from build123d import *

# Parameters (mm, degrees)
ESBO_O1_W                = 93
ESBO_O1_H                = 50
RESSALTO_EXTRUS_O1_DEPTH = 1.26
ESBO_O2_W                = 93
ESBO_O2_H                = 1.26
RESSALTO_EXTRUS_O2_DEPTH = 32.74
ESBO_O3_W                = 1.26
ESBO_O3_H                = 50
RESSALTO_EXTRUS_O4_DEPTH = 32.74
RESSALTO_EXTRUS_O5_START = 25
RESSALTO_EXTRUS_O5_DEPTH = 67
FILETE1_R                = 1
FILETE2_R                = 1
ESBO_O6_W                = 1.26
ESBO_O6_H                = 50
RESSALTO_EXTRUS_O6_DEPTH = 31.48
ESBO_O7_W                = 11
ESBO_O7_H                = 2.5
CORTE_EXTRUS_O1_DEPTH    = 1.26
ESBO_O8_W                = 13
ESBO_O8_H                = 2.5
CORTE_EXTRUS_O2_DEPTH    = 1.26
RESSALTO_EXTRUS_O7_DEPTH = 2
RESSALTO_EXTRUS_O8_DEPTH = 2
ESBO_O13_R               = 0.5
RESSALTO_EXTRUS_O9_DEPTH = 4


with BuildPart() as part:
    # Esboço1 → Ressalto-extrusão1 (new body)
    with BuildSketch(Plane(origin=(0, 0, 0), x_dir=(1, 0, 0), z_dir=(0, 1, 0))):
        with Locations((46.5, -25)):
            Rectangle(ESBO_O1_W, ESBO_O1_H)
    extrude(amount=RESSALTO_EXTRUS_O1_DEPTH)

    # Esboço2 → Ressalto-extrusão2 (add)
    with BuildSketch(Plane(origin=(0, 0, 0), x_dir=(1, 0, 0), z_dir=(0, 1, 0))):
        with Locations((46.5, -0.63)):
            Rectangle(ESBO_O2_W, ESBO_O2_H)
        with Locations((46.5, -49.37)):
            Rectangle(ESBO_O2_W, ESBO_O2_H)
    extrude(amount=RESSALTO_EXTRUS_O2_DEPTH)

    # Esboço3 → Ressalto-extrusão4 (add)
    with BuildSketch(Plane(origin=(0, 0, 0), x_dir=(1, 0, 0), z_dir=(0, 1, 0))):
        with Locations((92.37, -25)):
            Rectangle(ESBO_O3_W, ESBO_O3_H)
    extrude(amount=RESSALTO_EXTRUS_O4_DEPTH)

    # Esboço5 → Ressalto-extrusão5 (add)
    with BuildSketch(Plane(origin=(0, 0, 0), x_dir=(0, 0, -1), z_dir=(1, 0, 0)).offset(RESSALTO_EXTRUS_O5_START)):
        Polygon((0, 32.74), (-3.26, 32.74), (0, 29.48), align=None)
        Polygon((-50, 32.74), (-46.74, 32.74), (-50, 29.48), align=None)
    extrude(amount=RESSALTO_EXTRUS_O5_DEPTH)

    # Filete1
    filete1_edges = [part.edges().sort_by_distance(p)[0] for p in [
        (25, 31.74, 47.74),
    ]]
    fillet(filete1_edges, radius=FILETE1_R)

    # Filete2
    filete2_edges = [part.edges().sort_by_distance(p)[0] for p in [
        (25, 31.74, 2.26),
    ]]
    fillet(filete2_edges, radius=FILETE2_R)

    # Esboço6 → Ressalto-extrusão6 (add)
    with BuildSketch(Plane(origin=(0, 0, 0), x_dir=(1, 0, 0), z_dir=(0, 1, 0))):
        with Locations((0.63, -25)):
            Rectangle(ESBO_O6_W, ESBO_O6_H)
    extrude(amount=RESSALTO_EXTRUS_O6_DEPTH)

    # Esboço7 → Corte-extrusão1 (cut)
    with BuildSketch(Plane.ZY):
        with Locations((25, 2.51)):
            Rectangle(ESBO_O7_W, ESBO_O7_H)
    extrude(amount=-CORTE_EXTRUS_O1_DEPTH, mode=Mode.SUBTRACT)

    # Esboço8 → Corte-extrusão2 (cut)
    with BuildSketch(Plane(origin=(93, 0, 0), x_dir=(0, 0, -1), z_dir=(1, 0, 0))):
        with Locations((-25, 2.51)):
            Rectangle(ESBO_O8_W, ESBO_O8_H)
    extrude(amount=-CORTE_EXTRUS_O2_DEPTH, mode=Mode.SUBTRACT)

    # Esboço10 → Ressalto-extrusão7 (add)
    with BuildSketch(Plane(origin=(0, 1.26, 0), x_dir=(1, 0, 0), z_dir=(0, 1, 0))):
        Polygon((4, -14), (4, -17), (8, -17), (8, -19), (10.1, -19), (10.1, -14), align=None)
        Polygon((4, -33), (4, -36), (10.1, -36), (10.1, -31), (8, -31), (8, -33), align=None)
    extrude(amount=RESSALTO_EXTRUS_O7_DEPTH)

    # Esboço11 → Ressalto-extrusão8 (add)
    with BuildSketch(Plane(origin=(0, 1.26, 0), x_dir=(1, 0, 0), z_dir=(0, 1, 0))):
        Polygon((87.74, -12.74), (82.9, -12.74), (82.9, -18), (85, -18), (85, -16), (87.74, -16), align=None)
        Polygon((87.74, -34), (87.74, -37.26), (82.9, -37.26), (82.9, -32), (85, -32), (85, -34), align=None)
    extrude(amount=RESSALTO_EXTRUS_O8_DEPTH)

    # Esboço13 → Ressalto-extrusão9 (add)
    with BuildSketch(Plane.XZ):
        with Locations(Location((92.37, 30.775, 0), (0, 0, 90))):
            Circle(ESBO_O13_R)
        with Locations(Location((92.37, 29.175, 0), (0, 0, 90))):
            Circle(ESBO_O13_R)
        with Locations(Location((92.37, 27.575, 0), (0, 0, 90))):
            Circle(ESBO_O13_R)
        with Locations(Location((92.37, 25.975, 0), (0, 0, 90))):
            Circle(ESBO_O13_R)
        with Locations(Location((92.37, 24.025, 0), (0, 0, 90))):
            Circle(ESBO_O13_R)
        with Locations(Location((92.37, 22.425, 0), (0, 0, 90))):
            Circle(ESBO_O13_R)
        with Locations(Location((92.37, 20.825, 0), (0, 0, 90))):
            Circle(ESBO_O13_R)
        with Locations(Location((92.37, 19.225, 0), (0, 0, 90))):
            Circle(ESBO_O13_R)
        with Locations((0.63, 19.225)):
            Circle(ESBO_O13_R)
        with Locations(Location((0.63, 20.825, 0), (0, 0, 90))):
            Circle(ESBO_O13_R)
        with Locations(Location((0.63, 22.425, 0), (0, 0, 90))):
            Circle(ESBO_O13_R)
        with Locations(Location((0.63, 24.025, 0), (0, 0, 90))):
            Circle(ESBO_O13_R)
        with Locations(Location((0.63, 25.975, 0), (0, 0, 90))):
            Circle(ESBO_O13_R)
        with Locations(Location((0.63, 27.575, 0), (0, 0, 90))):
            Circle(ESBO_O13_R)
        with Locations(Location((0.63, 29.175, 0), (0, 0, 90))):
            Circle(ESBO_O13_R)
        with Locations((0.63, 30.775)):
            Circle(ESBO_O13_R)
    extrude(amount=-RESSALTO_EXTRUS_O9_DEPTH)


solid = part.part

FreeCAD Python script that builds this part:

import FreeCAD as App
import Part
import Sketcher

V = App.Vector


def edges_at(feature, points):
    """Names of the edges that pass closest to the given points."""
    edges = feature.Shape.Edges
    near = lambda p: min(range(len(edges)), key=lambda i: edges[i].distToShape(Part.Vertex(*p))[0])
    return sorted({f"Edge{near(p) + 1}" for p in points})

doc = App.newDocument("Part")
body = doc.addObject("PartDesign::Body", "Body")

sketch1 = body.newObject("Sketcher::SketchObject", "Sketch")
sketch1.AttachmentSupport = (doc.getObject("XZ_Plane"), [""])
sketch1.MapMode = "FlatFace"
sketch1.addGeometry(Part.LineSegment(V(0, 0, 0), V(0, 50, 0)), False)
sketch1.addGeometry(Part.LineSegment(V(0, 50, 0), V(93, 50, 0)), False)
sketch1.addGeometry(Part.LineSegment(V(93, 50, 0), V(93, 0, 0)), False)
sketch1.addGeometry(Part.LineSegment(V(93, 0, 0), V(0, 0, 0)), False)
sketch1.addConstraint(Sketcher.Constraint("Coincident", 0, 2, 1, 1))
sketch1.addConstraint(Sketcher.Constraint("Coincident", 1, 2, 2, 1))
sketch1.addConstraint(Sketcher.Constraint("Coincident", 2, 2, 3, 1))
sketch1.addConstraint(Sketcher.Constraint("Coincident", 3, 2, 0, 1))
sketch1.addConstraint(Sketcher.Constraint("Vertical", 0))
sketch1.addConstraint(Sketcher.Constraint("Horizontal", 1))
sketch1.addConstraint(Sketcher.Constraint("Vertical", 2))
sketch1.addConstraint(Sketcher.Constraint("Horizontal", 3))
sketch1.addConstraint(Sketcher.Constraint("Coincident", 3, 2, -1, 1))
sketch1.addConstraint(Sketcher.Constraint("DistanceX", 1, 1, 1, 2, 93.0))
sketch1.addConstraint(Sketcher.Constraint("DistanceY", 0, 1, 0, 2, 50.0))
pad1 = body.newObject("PartDesign::Pad", "Pad")
pad1.Profile = sketch1
pad1.Length = 1.26
pad1.Reversed = True

sketch2 = body.newObject("Sketcher::SketchObject", "Sketch001")
sketch2.AttachmentSupport = (doc.getObject("XZ_Plane"), [""])
sketch2.MapMode = "FlatFace"
sketch2.addGeometry(Part.LineSegment(V(0, 0, 0), V(0, 1.26, 0)), False)
sketch2.addGeometry(Part.LineSegment(V(0, 1.26, 0), V(93, 1.26, 0)), False)
sketch2.addGeometry(Part.LineSegment(V(93, 1.26, 0), V(93, 0, 0)), False)
sketch2.addGeometry(Part.LineSegment(V(93, 0, 0), V(0, 0, 0)), False)
sketch2.addGeometry(Part.LineSegment(V(0, 48.74, 0), V(0, 50, 0)), False)
sketch2.addGeometry(Part.LineSegment(V(0, 50, 0), V(93, 50, 0)), False)
sketch2.addGeometry(Part.LineSegment(V(93, 50, 0), V(93, 48.74, 0)), False)
sketch2.addGeometry(Part.LineSegment(V(93, 48.74, 0), V(0, 48.74, 0)), False)
sketch2.addConstraint(Sketcher.Constraint("Coincident", 0, 2, 1, 1))
sketch2.addConstraint(Sketcher.Constraint("Coincident", 1, 2, 2, 1))
sketch2.addConstraint(Sketcher.Constraint("Coincident", 2, 2, 3, 1))
sketch2.addConstraint(Sketcher.Constraint("Coincident", 3, 2, 0, 1))
sketch2.addConstraint(Sketcher.Constraint("Coincident", 4, 2, 5, 1))
sketch2.addConstraint(Sketcher.Constraint("Coincident", 5, 2, 6, 1))
sketch2.addConstraint(Sketcher.Constraint("Coincident", 6, 2, 7, 1))
sketch2.addConstraint(Sketcher.Constraint("Coincident", 7, 2, 4, 1))
sketch2.addConstraint(Sketcher.Constraint("Vertical", 0))
sketch2.addConstraint(Sketcher.Constraint("Horizontal", 1))
sketch2.addConstraint(Sketcher.Constraint("Vertical", 2))
sketch2.addConstraint(Sketcher.Constraint("Horizontal", 3))
sketch2.addConstraint(Sketcher.Constraint("Vertical", 4))
sketch2.addConstraint(Sketcher.Constraint("Horizontal", 5))
sketch2.addConstraint(Sketcher.Constraint("Vertical", 6))
sketch2.addConstraint(Sketcher.Constraint("Horizontal", 7))
sketch2.addConstraint(Sketcher.Constraint("Coincident", 3, 2, -1, 1))
sketch2.addConstraint(Sketcher.Constraint("PointOnObject", 4, 2, -2))
sketch2.addConstraint(Sketcher.Constraint("Vertical", 2, 2, 5, 2))
sketch2.addConstraint(Sketcher.Constraint("Equal", 2, 4))
sketch2.addConstraint(Sketcher.Constraint("DistanceX", 1, 1, 1, 2, 93.0))
sketch2.addConstraint(Sketcher.Constraint("DistanceY", -1, 1, 4, 2, 50.0))
sketch2.addConstraint(Sketcher.Constraint("DistanceY", 0, 1, 0, 2, 1.26))
pad2 = body.newObject("PartDesign::Pad", "Pad001")
pad2.Profile = sketch2
pad2.Length = 32.74
pad2.Reversed = True

sketch3 = body.newObject("Sketcher::SketchObject", "Sketch002")
sketch3.AttachmentSupport = (doc.getObject("XZ_Plane"), [""])
sketch3.MapMode = "FlatFace"
sketch3.addGeometry(Part.LineSegment(V(91.74, 0, 0), V(91.74, 50, 0)), False)
sketch3.addGeometry(Part.LineSegment(V(91.74, 50, 0), V(93, 50, 0)), False)
sketch3.addGeometry(Part.LineSegment(V(93, 50, 0), V(93, 0, 0)), False)
sketch3.addGeometry(Part.LineSegment(V(93, 0, 0), V(91.74, 0, 0)), False)
sketch3.addConstraint(Sketcher.Constraint("Coincident", 0, 2, 1, 1))
sketch3.addConstraint(Sketcher.Constraint("Coincident", 1, 2, 2, 1))
sketch3.addConstraint(Sketcher.Constraint("Coincident", 2, 2, 3, 1))
sketch3.addConstraint(Sketcher.Constraint("Coincident", 3, 2, 0, 1))
sketch3.addConstraint(Sketcher.Constraint("Vertical", 0))
sketch3.addConstraint(Sketcher.Constraint("Horizontal", 1))
sketch3.addConstraint(Sketcher.Constraint("Vertical", 2))
sketch3.addConstraint(Sketcher.Constraint("Horizontal", 3))
sketch3.addConstraint(Sketcher.Constraint("PointOnObject", 2, 2, -1))
sketch3.addConstraint(Sketcher.Constraint("DistanceY", 0, 1, 0, 2, 50.0))
sketch3.addConstraint(Sketcher.Constraint("DistanceX", -1, 1, 1, 2, 93.0))
sketch3.addConstraint(Sketcher.Constraint("DistanceX", 1, 1, 1, 2, 1.26))
pad3 = body.newObject("PartDesign::Pad", "Pad002")
pad3.Profile = sketch3
pad3.Length = 32.74
pad3.Reversed = True

sketch4 = body.newObject("Sketcher::SketchObject", "Sketch003")
sketch4.AttachmentSupport = (doc.getObject("YZ_Plane"), [""])
sketch4.MapMode = "FlatFace"
sketch4.AttachmentOffset = App.Placement(V(0, 0, 25), App.Rotation())
sketch4.addGeometry(Part.LineSegment(V(32.74, 0, 0), V(32.74, 3.26, 0)), False)
sketch4.addGeometry(Part.LineSegment(V(32.74, 3.26, 0), V(29.48, 0, 0)), False)
sketch4.addGeometry(Part.LineSegment(V(29.48, 0, 0), V(32.74, 0, 0)), False)
sketch4.addGeometry(Part.LineSegment(V(32.74, 46.74, 0), V(32.74, 50, 0)), False)
sketch4.addGeometry(Part.LineSegment(V(32.74, 50, 0), V(29.48, 50, 0)), False)
sketch4.addGeometry(Part.LineSegment(V(29.48, 50, 0), V(32.74, 46.74, 0)), False)
sketch4.addConstraint(Sketcher.Constraint("Coincident", 0, 2, 1, 1))
sketch4.addConstraint(Sketcher.Constraint("Coincident", 1, 2, 2, 1))
sketch4.addConstraint(Sketcher.Constraint("Coincident", 2, 2, 0, 1))
sketch4.addConstraint(Sketcher.Constraint("Coincident", 3, 2, 4, 1))
sketch4.addConstraint(Sketcher.Constraint("Coincident", 4, 2, 5, 1))
sketch4.addConstraint(Sketcher.Constraint("Coincident", 5, 2, 3, 1))
sketch4.addConstraint(Sketcher.Constraint("Vertical", 0))
sketch4.addConstraint(Sketcher.Constraint("Horizontal", 2))
sketch4.addConstraint(Sketcher.Constraint("Vertical", 3))
sketch4.addConstraint(Sketcher.Constraint("Horizontal", 4))
sketch4.addConstraint(Sketcher.Constraint("PointOnObject", 1, 2, -1))
sketch4.addConstraint(Sketcher.Constraint("Perpendicular", 1, 5))
sketch4.addConstraint(Sketcher.Constraint("Vertical", 2, 2, 3, 2))
sketch4.addConstraint(Sketcher.Constraint("Vertical", 1, 2, 4, 2))
sketch4.addConstraint(Sketcher.Constraint("Equal", 4, 0))
sketch4.addConstraint(Sketcher.Constraint("DistanceY", -1, 1, 3, 2, 50.0))
sketch4.addConstraint(Sketcher.Constraint("DistanceX", 2, 1, 2, 2, 3.26))
sketch4.addConstraint(Sketcher.Constraint("DistanceX", -1, 1, 0, 2, 32.74))
pad4 = body.newObject("PartDesign::Pad", "Pad003")
pad4.Profile = sketch4
pad4.Length = 67
doc.recompute()

fillet = body.newObject("PartDesign::Fillet", "Fillet")
fillet.Base = (pad4, edges_at(pad4, [(25, 31.74, 47.74)]))
fillet.Radius = 1
doc.recompute()

fillet2 = body.newObject("PartDesign::Fillet", "Fillet001")
fillet2.Base = (fillet, edges_at(fillet, [(25, 31.74, 2.26)]))
fillet2.Radius = 1

sketch5 = body.newObject("Sketcher::SketchObject", "Sketch004")
sketch5.AttachmentSupport = (doc.getObject("XZ_Plane"), [""])
sketch5.MapMode = "FlatFace"
sketch5.addGeometry(Part.LineSegment(V(0, 0, 0), V(0, 50, 0)), False)
sketch5.addGeometry(Part.LineSegment(V(0, 50, 0), V(1.26, 50, 0)), False)
sketch5.addGeometry(Part.LineSegment(V(1.26, 50, 0), V(1.26, 0, 0)), False)
sketch5.addGeometry(Part.LineSegment(V(1.26, 0, 0), V(0, 0, 0)), False)
sketch5.addConstraint(Sketcher.Constraint("Coincident", 0, 2, 1, 1))
sketch5.addConstraint(Sketcher.Constraint("Coincident", 1, 2, 2, 1))
sketch5.addConstraint(Sketcher.Constraint("Coincident", 2, 2, 3, 1))
sketch5.addConstraint(Sketcher.Constraint("Coincident", 3, 2, 0, 1))
sketch5.addConstraint(Sketcher.Constraint("Vertical", 0))
sketch5.addConstraint(Sketcher.Constraint("Horizontal", 1))
sketch5.addConstraint(Sketcher.Constraint("Vertical", 2))
sketch5.addConstraint(Sketcher.Constraint("Horizontal", 3))
sketch5.addConstraint(Sketcher.Constraint("Coincident", 3, 2, -1, 1))
sketch5.addConstraint(Sketcher.Constraint("DistanceY", 0, 1, 0, 2, 50.0))
sketch5.addConstraint(Sketcher.Constraint("DistanceX", 1, 1, 1, 2, 1.26))
pad5 = body.newObject("PartDesign::Pad", "Pad004")
pad5.Profile = sketch5
pad5.Length = 31.48
pad5.Reversed = True

sketch6 = body.newObject("Sketcher::SketchObject", "Sketch005")
sketch6.AttachmentSupport = (doc.getObject("YZ_Plane"), [""])
sketch6.MapMode = "FlatFace"
sketch6.addGeometry(Part.LineSegment(V(3.76, 19.5, 0), V(1.26, 19.5, 0)), False)
sketch6.addGeometry(Part.LineSegment(V(1.26, 19.5, 0), V(1.26, 30.5, 0)), False)
sketch6.addGeometry(Part.LineSegment(V(1.26, 30.5, 0), V(3.76, 30.5, 0)), False)
sketch6.addGeometry(Part.LineSegment(V(3.76, 30.5, 0), V(3.76, 19.5, 0)), False)
sketch6.addConstraint(Sketcher.Constraint("Coincident", 0, 2, 1, 1))
sketch6.addConstraint(Sketcher.Constraint("Coincident", 1, 2, 2, 1))
sketch6.addConstraint(Sketcher.Constraint("Coincident", 2, 2, 3, 1))
sketch6.addConstraint(Sketcher.Constraint("Coincident", 3, 2, 0, 1))
sketch6.addConstraint(Sketcher.Constraint("Horizontal", 0))
sketch6.addConstraint(Sketcher.Constraint("Vertical", 1))
sketch6.addConstraint(Sketcher.Constraint("Horizontal", 2))
sketch6.addConstraint(Sketcher.Constraint("Vertical", 3))
sketch6.addConstraint(Sketcher.Constraint("DistanceY", 1, 1, 1, 2, 11.0))
sketch6.addConstraint(Sketcher.Constraint("DistanceX", 0, 2, 0, 1, 2.5))
sketch6.addConstraint(Sketcher.Constraint("DistanceY", -1, 1, 0, 2, 19.5))
sketch6.addConstraint(Sketcher.Constraint("DistanceX", -1, 1, 0, 2, 1.26))
pocket1 = body.newObject("PartDesign::Pocket", "Pocket")
pocket1.Profile = sketch6
pocket1.Length = 1.26
pocket1.Reversed = True

sketch7 = body.newObject("Sketcher::SketchObject", "Sketch006")
sketch7.AttachmentSupport = (doc.getObject("YZ_Plane"), [""])
sketch7.MapMode = "FlatFace"
sketch7.AttachmentOffset = App.Placement(V(0, 0, 93), App.Rotation())
sketch7.addGeometry(Part.LineSegment(V(3.76, 31.5, 0), V(1.26, 31.5, 0)), False)
sketch7.addGeometry(Part.LineSegment(V(1.26, 31.5, 0), V(1.26, 18.5, 0)), False)
sketch7.addGeometry(Part.LineSegment(V(1.26, 18.5, 0), V(3.76, 18.5, 0)), False)
sketch7.addGeometry(Part.LineSegment(V(3.76, 18.5, 0), V(3.76, 31.5, 0)), False)
sketch7.addConstraint(Sketcher.Constraint("Coincident", 0, 2, 1, 1))
sketch7.addConstraint(Sketcher.Constraint("Coincident", 1, 2, 2, 1))
sketch7.addConstraint(Sketcher.Constraint("Coincident", 2, 2, 3, 1))
sketch7.addConstraint(Sketcher.Constraint("Coincident", 3, 2, 0, 1))
sketch7.addConstraint(Sketcher.Constraint("Horizontal", 0))
sketch7.addConstraint(Sketcher.Constraint("Vertical", 1))
sketch7.addConstraint(Sketcher.Constraint("Horizontal", 2))
sketch7.addConstraint(Sketcher.Constraint("Vertical", 3))
sketch7.addConstraint(Sketcher.Constraint("DistanceY", 1, 2, 1, 1, 13.0))
sketch7.addConstraint(Sketcher.Constraint("DistanceX", 0, 2, 0, 1, 2.5))
sketch7.addConstraint(Sketcher.Constraint("DistanceY", -1, 1, 0, 2, 31.5))
sketch7.addConstraint(Sketcher.Constraint("DistanceX", -1, 1, 0, 2, 1.26))
pocket2 = body.newObject("PartDesign::Pocket", "Pocket001")
pocket2.Profile = sketch7
pocket2.Length = 1.26

sketch8 = body.newObject("Sketcher::SketchObject", "Sketch007")
sketch8.AttachmentSupport = (doc.getObject("XZ_Plane"), [""])
sketch8.MapMode = "FlatFace"
sketch8.AttachmentOffset = App.Placement(V(0, 0, -1.26), App.Rotation())
sketch8.addGeometry(Part.LineSegment(V(4, 14, 0), V(4, 17, 0)), False)
sketch8.addGeometry(Part.LineSegment(V(4, 17, 0), V(8, 17, 0)), False)
sketch8.addGeometry(Part.LineSegment(V(8, 17, 0), V(8, 19, 0)), False)
sketch8.addGeometry(Part.LineSegment(V(8, 19, 0), V(10.1, 19, 0)), False)
sketch8.addGeometry(Part.LineSegment(V(10.1, 19, 0), V(10.1, 14, 0)), False)
sketch8.addGeometry(Part.LineSegment(V(10.1, 14, 0), V(4, 14, 0)), False)
sketch8.addGeometry(Part.LineSegment(V(4, 33, 0), V(4, 36, 0)), False)
sketch8.addGeometry(Part.LineSegment(V(4, 36, 0), V(10.1, 36, 0)), False)
sketch8.addGeometry(Part.LineSegment(V(10.1, 36, 0), V(10.1, 31, 0)), False)
sketch8.addGeometry(Part.LineSegment(V(10.1, 31, 0), V(8, 31, 0)), False)
sketch8.addGeometry(Part.LineSegment(V(8, 31, 0), V(8, 33, 0)), False)
sketch8.addGeometry(Part.LineSegment(V(8, 33, 0), V(4, 33, 0)), False)
sketch8.addConstraint(Sketcher.Constraint("Coincident", 0, 2, 1, 1))
sketch8.addConstraint(Sketcher.Constraint("Coincident", 1, 2, 2, 1))
sketch8.addConstraint(Sketcher.Constraint("Coincident", 2, 2, 3, 1))
sketch8.addConstraint(Sketcher.Constraint("Coincident", 3, 2, 4, 1))
sketch8.addConstraint(Sketcher.Constraint("Coincident", 4, 2, 5, 1))
sketch8.addConstraint(Sketcher.Constraint("Coincident", 5, 2, 0, 1))
sketch8.addConstraint(Sketcher.Constraint("Coincident", 6, 2, 7, 1))
sketch8.addConstraint(Sketcher.Constraint("Coincident", 7, 2, 8, 1))
sketch8.addConstraint(Sketcher.Constraint("Coincident", 8, 2, 9, 1))
sketch8.addConstraint(Sketcher.Constraint("Coincident", 9, 2, 10, 1))
sketch8.addConstraint(Sketcher.Constraint("Coincident", 10, 2, 11, 1))
sketch8.addConstraint(Sketcher.Constraint("Coincident", 11, 2, 6, 1))
sketch8.addConstraint(Sketcher.Constraint("Vertical", 0))
sketch8.addConstraint(Sketcher.Constraint("Horizontal", 1))
sketch8.addConstraint(Sketcher.Constraint("Vertical", 2))
sketch8.addConstraint(Sketcher.Constraint("Horizontal", 3))
sketch8.addConstraint(Sketcher.Constraint("Vertical", 4))
sketch8.addConstraint(Sketcher.Constraint("Horizontal", 5))
sketch8.addConstraint(Sketcher.Constraint("Vertical", 6))
sketch8.addConstraint(Sketcher.Constraint("Horizontal", 7))
sketch8.addConstraint(Sketcher.Constraint("Vertical", 8))
sketch8.addConstraint(Sketcher.Constraint("Horizontal", 9))
sketch8.addConstraint(Sketcher.Constraint("Vertical", 10))
sketch8.addConstraint(Sketcher.Constraint("Horizontal", 11))
sketch8.addConstraint(Sketcher.Constraint("Vertical", 5, 2, 6, 2))
sketch8.addConstraint(Sketcher.Constraint("Vertical", 4, 2, 7, 2))
sketch8.addConstraint(Sketcher.Constraint("Vertical", 2, 2, 9, 2))
sketch8.addConstraint(Sketcher.Constraint("Equal", 0, 6))
sketch8.addConstraint(Sketcher.Constraint("Equal", 4, 8))
sketch8.addConstraint(Sketcher.Constraint("DistanceX", 1, 1, 1, 2, 4.0))
sketch8.addConstraint(Sketcher.Constraint("DistanceY", 0, 1, 0, 2, 3.0))
sketch8.addConstraint(Sketcher.Constraint("DistanceY", 2, 1, 2, 2, 2.0))
sketch8.addConstraint(Sketcher.Constraint("DistanceX", 3, 1, 3, 2, 2.1))
sketch8.addConstraint(Sketcher.Constraint("DistanceX", -1, 1, 0, 2, 4.0))
sketch8.addConstraint(Sketcher.Constraint("DistanceY", -1, 1, 0, 2, 17.0))
sketch8.addConstraint(Sketcher.Constraint("DistanceY", -1, 1, 6, 2, 36.0))
pad6 = body.newObject("PartDesign::Pad", "Pad005")
pad6.Profile = sketch8
pad6.Length = 2
pad6.Reversed = True

sketch9 = body.newObject("Sketcher::SketchObject", "Sketch008")
sketch9.AttachmentSupport = (doc.getObject("XZ_Plane"), [""])
sketch9.MapMode = "FlatFace"
sketch9.AttachmentOffset = App.Placement(V(0, 0, -1.26), App.Rotation())
sketch9.addGeometry(Part.LineSegment(V(87.74, 12.74, 0), V(82.9, 12.74, 0)), False)
sketch9.addGeometry(Part.LineSegment(V(82.9, 12.74, 0), V(82.9, 18, 0)), False)
sketch9.addGeometry(Part.LineSegment(V(82.9, 18, 0), V(85, 18, 0)), False)
sketch9.addGeometry(Part.LineSegment(V(85, 18, 0), V(85, 16, 0)), False)
sketch9.addGeometry(Part.LineSegment(V(85, 16, 0), V(87.74, 16, 0)), False)
sketch9.addGeometry(Part.LineSegment(V(87.74, 16, 0), V(87.74, 12.74, 0)), False)
sketch9.addGeometry(Part.LineSegment(V(87.74, 37.26, 0), V(87.74, 34, 0)), False)
sketch9.addGeometry(Part.LineSegment(V(87.74, 34, 0), V(85, 34, 0)), False)
sketch9.addGeometry(Part.LineSegment(V(85, 34, 0), V(85, 32, 0)), False)
sketch9.addGeometry(Part.LineSegment(V(85, 32, 0), V(82.9, 32, 0)), False)
sketch9.addGeometry(Part.LineSegment(V(82.9, 32, 0), V(82.9, 37.26, 0)), False)
sketch9.addGeometry(Part.LineSegment(V(82.9, 37.26, 0), V(87.74, 37.26, 0)), False)
sketch9.addConstraint(Sketcher.Constraint("Coincident", 0, 2, 1, 1))
sketch9.addConstraint(Sketcher.Constraint("Coincident", 1, 2, 2, 1))
sketch9.addConstraint(Sketcher.Constraint("Coincident", 2, 2, 3, 1))
sketch9.addConstraint(Sketcher.Constraint("Coincident", 3, 2, 4, 1))
sketch9.addConstraint(Sketcher.Constraint("Coincident", 4, 2, 5, 1))
sketch9.addConstraint(Sketcher.Constraint("Coincident", 5, 2, 0, 1))
sketch9.addConstraint(Sketcher.Constraint("Coincident", 6, 2, 7, 1))
sketch9.addConstraint(Sketcher.Constraint("Coincident", 7, 2, 8, 1))
sketch9.addConstraint(Sketcher.Constraint("Coincident", 8, 2, 9, 1))
sketch9.addConstraint(Sketcher.Constraint("Coincident", 9, 2, 10, 1))
sketch9.addConstraint(Sketcher.Constraint("Coincident", 10, 2, 11, 1))
sketch9.addConstraint(Sketcher.Constraint("Coincident", 11, 2, 6, 1))
sketch9.addConstraint(Sketcher.Constraint("Horizontal", 0))
sketch9.addConstraint(Sketcher.Constraint("Vertical", 1))
sketch9.addConstraint(Sketcher.Constraint("Horizontal", 2))
sketch9.addConstraint(Sketcher.Constraint("Vertical", 3))
sketch9.addConstraint(Sketcher.Constraint("Horizontal", 4))
sketch9.addConstraint(Sketcher.Constraint("Vertical", 5))
sketch9.addConstraint(Sketcher.Constraint("Vertical", 6))
sketch9.addConstraint(Sketcher.Constraint("Horizontal", 7))
sketch9.addConstraint(Sketcher.Constraint("Vertical", 8))
sketch9.addConstraint(Sketcher.Constraint("Horizontal", 9))
sketch9.addConstraint(Sketcher.Constraint("Vertical", 10))
sketch9.addConstraint(Sketcher.Constraint("Horizontal", 11))
sketch9.addConstraint(Sketcher.Constraint("Vertical", 5, 2, 6, 2))
sketch9.addConstraint(Sketcher.Constraint("Vertical", 3, 2, 7, 2))
sketch9.addConstraint(Sketcher.Constraint("Vertical", 1, 2, 9, 2))
sketch9.addConstraint(Sketcher.Constraint("Equal", 5, 6))
sketch9.addConstraint(Sketcher.Constraint("Equal", 3, 8))
sketch9.addConstraint(Sketcher.Constraint("DistanceY", 3, 2, 3, 1, 2.0))
sketch9.addConstraint(Sketcher.Constraint("DistanceX", 2, 1, 2, 2, 2.1))
sketch9.addConstraint(Sketcher.Constraint("DistanceY", -1, 1, 1, 2, 18.0))
sketch9.addConstraint(Sketcher.Constraint("DistanceX", -1, 1, 2, 2, 85.0))
sketch9.addConstraint(Sketcher.Constraint("DistanceY", -1, 1, 6, 2, 34.0))
sketch9.addConstraint(Sketcher.Constraint("DistanceX", 0, 2, 0, 1, 4.84))
sketch9.addConstraint(Sketcher.Constraint("DistanceY", 1, 1, 1, 2, 5.26))
pad7 = body.newObject("PartDesign::Pad", "Pad006")
pad7.Profile = sketch9
pad7.Length = 2
pad7.Reversed = True

sketch10 = body.newObject("Sketcher::SketchObject", "Sketch009")
sketch10.AttachmentSupport = (doc.getObject("XZ_Plane"), [""])
sketch10.MapMode = "FlatFace"
sketch10.addGeometry(Part.Circle(V(92.37, 30.775, 0), V(0, 0, 1), 0.5), False)
sketch10.addGeometry(Part.Circle(V(92.37, 29.175, 0), V(0, 0, 1), 0.5), False)
sketch10.addGeometry(Part.Circle(V(92.37, 27.575, 0), V(0, 0, 1), 0.5), False)
sketch10.addGeometry(Part.Circle(V(92.37, 25.975, 0), V(0, 0, 1), 0.5), False)
sketch10.addGeometry(Part.Circle(V(92.37, 24.025, 0), V(0, 0, 1), 0.5), False)
sketch10.addGeometry(Part.Circle(V(92.37, 22.425, 0), V(0, 0, 1), 0.5), False)
sketch10.addGeometry(Part.Circle(V(92.37, 20.825, 0), V(0, 0, 1), 0.5), False)
sketch10.addGeometry(Part.Circle(V(92.37, 19.225, 0), V(0, 0, 1), 0.5), False)
sketch10.addGeometry(Part.Circle(V(0.63, 19.225, 0), V(0, 0, 1), 0.5), False)
sketch10.addGeometry(Part.Circle(V(0.63, 20.825, 0), V(0, 0, 1), 0.5), False)
sketch10.addGeometry(Part.Circle(V(0.63, 22.425, 0), V(0, 0, 1), 0.5), False)
sketch10.addGeometry(Part.Circle(V(0.63, 24.025, 0), V(0, 0, 1), 0.5), False)
sketch10.addGeometry(Part.Circle(V(0.63, 25.975, 0), V(0, 0, 1), 0.5), False)
sketch10.addGeometry(Part.Circle(V(0.63, 27.575, 0), V(0, 0, 1), 0.5), False)
sketch10.addGeometry(Part.Circle(V(0.63, 29.175, 0), V(0, 0, 1), 0.5), False)
sketch10.addGeometry(Part.Circle(V(0.63, 30.775, 0), V(0, 0, 1), 0.5), False)
sketch10.addConstraint(Sketcher.Constraint("Equal", 0, 1))
sketch10.addConstraint(Sketcher.Constraint("Equal", 1, 2))
sketch10.addConstraint(Sketcher.Constraint("Equal", 2, 3))
sketch10.addConstraint(Sketcher.Constraint("Equal", 3, 4))
sketch10.addConstraint(Sketcher.Constraint("Equal", 4, 5))
sketch10.addConstraint(Sketcher.Constraint("Equal", 5, 6))
sketch10.addConstraint(Sketcher.Constraint("Equal", 6, 7))
sketch10.addConstraint(Sketcher.Constraint("Equal", 7, 8))
sketch10.addConstraint(Sketcher.Constraint("Equal", 8, 9))
sketch10.addConstraint(Sketcher.Constraint("Equal", 9, 10))
sketch10.addConstraint(Sketcher.Constraint("Equal", 10, 11))
sketch10.addConstraint(Sketcher.Constraint("Equal", 11, 12))
sketch10.addConstraint(Sketcher.Constraint("Equal", 12, 13))
sketch10.addConstraint(Sketcher.Constraint("Equal", 13, 14))
sketch10.addConstraint(Sketcher.Constraint("Equal", 14, 15))
sketch10.addConstraint(Sketcher.Constraint("Horizontal", 7, 3, 8, 3))
sketch10.addConstraint(Sketcher.Constraint("Horizontal", 6, 3, 9, 3))
sketch10.addConstraint(Sketcher.Constraint("Horizontal", 5, 3, 10, 3))
sketch10.addConstraint(Sketcher.Constraint("Horizontal", 4, 3, 11, 3))
sketch10.addConstraint(Sketcher.Constraint("Horizontal", 3, 3, 12, 3))
sketch10.addConstraint(Sketcher.Constraint("Horizontal", 2, 3, 13, 3))
sketch10.addConstraint(Sketcher.Constraint("Horizontal", 1, 3, 14, 3))
sketch10.addConstraint(Sketcher.Constraint("Horizontal", 0, 3, 15, 3))
sketch10.addConstraint(Sketcher.Constraint("Vertical", 0, 3, 1, 3))
sketch10.addConstraint(Sketcher.Constraint("Vertical", 1, 3, 2, 3))
sketch10.addConstraint(Sketcher.Constraint("Vertical", 2, 3, 3, 3))
sketch10.addConstraint(Sketcher.Constraint("Vertical", 3, 3, 4, 3))
sketch10.addConstraint(Sketcher.Constraint("Vertical", 4, 3, 5, 3))
sketch10.addConstraint(Sketcher.Constraint("Vertical", 5, 3, 6, 3))
sketch10.addConstraint(Sketcher.Constraint("Vertical", 6, 3, 7, 3))
sketch10.addConstraint(Sketcher.Constraint("Vertical", 8, 3, 9, 3))
sketch10.addConstraint(Sketcher.Constraint("Vertical", 9, 3, 10, 3))
sketch10.addConstraint(Sketcher.Constraint("Vertical", 10, 3, 11, 3))
sketch10.addConstraint(Sketcher.Constraint("Vertical", 11, 3, 12, 3))
sketch10.addConstraint(Sketcher.Constraint("Vertical", 12, 3, 13, 3))
sketch10.addConstraint(Sketcher.Constraint("Vertical", 13, 3, 14, 3))
sketch10.addConstraint(Sketcher.Constraint("Vertical", 14, 3, 15, 3))
sketch10.addConstraint(Sketcher.Constraint("Diameter", 0, 1.0))
sketch10.addConstraint(Sketcher.Constraint("DistanceY", 1, 3, 0, 3, 1.6))
sketch10.addConstraint(Sketcher.Constraint("DistanceY", 2, 3, 1, 3, 1.6))
sketch10.addConstraint(Sketcher.Constraint("DistanceY", 3, 3, 2, 3, 1.6))
sketch10.addConstraint(Sketcher.Constraint("DistanceY", 5, 3, 4, 3, 1.6))
sketch10.addConstraint(Sketcher.Constraint("DistanceY", 6, 3, 5, 3, 1.6))
sketch10.addConstraint(Sketcher.Constraint("DistanceY", 7, 3, 6, 3, 1.6))
sketch10.addConstraint(Sketcher.Constraint("DistanceX", -1, 1, 0, 3, 92.37))
sketch10.addConstraint(Sketcher.Constraint("DistanceX", -1, 1, 8, 3, 0.63))
sketch10.addConstraint(Sketcher.Constraint("DistanceY", 4, 3, 3, 3, 1.95))
sketch10.addConstraint(Sketcher.Constraint("DistanceY", -1, 1, 0, 3, 30.775))
pad8 = body.newObject("PartDesign::Pad", "Pad007")
pad8.Profile = sketch10
pad8.Length = 4
pad8.Reversed = True

doc.recompute()
